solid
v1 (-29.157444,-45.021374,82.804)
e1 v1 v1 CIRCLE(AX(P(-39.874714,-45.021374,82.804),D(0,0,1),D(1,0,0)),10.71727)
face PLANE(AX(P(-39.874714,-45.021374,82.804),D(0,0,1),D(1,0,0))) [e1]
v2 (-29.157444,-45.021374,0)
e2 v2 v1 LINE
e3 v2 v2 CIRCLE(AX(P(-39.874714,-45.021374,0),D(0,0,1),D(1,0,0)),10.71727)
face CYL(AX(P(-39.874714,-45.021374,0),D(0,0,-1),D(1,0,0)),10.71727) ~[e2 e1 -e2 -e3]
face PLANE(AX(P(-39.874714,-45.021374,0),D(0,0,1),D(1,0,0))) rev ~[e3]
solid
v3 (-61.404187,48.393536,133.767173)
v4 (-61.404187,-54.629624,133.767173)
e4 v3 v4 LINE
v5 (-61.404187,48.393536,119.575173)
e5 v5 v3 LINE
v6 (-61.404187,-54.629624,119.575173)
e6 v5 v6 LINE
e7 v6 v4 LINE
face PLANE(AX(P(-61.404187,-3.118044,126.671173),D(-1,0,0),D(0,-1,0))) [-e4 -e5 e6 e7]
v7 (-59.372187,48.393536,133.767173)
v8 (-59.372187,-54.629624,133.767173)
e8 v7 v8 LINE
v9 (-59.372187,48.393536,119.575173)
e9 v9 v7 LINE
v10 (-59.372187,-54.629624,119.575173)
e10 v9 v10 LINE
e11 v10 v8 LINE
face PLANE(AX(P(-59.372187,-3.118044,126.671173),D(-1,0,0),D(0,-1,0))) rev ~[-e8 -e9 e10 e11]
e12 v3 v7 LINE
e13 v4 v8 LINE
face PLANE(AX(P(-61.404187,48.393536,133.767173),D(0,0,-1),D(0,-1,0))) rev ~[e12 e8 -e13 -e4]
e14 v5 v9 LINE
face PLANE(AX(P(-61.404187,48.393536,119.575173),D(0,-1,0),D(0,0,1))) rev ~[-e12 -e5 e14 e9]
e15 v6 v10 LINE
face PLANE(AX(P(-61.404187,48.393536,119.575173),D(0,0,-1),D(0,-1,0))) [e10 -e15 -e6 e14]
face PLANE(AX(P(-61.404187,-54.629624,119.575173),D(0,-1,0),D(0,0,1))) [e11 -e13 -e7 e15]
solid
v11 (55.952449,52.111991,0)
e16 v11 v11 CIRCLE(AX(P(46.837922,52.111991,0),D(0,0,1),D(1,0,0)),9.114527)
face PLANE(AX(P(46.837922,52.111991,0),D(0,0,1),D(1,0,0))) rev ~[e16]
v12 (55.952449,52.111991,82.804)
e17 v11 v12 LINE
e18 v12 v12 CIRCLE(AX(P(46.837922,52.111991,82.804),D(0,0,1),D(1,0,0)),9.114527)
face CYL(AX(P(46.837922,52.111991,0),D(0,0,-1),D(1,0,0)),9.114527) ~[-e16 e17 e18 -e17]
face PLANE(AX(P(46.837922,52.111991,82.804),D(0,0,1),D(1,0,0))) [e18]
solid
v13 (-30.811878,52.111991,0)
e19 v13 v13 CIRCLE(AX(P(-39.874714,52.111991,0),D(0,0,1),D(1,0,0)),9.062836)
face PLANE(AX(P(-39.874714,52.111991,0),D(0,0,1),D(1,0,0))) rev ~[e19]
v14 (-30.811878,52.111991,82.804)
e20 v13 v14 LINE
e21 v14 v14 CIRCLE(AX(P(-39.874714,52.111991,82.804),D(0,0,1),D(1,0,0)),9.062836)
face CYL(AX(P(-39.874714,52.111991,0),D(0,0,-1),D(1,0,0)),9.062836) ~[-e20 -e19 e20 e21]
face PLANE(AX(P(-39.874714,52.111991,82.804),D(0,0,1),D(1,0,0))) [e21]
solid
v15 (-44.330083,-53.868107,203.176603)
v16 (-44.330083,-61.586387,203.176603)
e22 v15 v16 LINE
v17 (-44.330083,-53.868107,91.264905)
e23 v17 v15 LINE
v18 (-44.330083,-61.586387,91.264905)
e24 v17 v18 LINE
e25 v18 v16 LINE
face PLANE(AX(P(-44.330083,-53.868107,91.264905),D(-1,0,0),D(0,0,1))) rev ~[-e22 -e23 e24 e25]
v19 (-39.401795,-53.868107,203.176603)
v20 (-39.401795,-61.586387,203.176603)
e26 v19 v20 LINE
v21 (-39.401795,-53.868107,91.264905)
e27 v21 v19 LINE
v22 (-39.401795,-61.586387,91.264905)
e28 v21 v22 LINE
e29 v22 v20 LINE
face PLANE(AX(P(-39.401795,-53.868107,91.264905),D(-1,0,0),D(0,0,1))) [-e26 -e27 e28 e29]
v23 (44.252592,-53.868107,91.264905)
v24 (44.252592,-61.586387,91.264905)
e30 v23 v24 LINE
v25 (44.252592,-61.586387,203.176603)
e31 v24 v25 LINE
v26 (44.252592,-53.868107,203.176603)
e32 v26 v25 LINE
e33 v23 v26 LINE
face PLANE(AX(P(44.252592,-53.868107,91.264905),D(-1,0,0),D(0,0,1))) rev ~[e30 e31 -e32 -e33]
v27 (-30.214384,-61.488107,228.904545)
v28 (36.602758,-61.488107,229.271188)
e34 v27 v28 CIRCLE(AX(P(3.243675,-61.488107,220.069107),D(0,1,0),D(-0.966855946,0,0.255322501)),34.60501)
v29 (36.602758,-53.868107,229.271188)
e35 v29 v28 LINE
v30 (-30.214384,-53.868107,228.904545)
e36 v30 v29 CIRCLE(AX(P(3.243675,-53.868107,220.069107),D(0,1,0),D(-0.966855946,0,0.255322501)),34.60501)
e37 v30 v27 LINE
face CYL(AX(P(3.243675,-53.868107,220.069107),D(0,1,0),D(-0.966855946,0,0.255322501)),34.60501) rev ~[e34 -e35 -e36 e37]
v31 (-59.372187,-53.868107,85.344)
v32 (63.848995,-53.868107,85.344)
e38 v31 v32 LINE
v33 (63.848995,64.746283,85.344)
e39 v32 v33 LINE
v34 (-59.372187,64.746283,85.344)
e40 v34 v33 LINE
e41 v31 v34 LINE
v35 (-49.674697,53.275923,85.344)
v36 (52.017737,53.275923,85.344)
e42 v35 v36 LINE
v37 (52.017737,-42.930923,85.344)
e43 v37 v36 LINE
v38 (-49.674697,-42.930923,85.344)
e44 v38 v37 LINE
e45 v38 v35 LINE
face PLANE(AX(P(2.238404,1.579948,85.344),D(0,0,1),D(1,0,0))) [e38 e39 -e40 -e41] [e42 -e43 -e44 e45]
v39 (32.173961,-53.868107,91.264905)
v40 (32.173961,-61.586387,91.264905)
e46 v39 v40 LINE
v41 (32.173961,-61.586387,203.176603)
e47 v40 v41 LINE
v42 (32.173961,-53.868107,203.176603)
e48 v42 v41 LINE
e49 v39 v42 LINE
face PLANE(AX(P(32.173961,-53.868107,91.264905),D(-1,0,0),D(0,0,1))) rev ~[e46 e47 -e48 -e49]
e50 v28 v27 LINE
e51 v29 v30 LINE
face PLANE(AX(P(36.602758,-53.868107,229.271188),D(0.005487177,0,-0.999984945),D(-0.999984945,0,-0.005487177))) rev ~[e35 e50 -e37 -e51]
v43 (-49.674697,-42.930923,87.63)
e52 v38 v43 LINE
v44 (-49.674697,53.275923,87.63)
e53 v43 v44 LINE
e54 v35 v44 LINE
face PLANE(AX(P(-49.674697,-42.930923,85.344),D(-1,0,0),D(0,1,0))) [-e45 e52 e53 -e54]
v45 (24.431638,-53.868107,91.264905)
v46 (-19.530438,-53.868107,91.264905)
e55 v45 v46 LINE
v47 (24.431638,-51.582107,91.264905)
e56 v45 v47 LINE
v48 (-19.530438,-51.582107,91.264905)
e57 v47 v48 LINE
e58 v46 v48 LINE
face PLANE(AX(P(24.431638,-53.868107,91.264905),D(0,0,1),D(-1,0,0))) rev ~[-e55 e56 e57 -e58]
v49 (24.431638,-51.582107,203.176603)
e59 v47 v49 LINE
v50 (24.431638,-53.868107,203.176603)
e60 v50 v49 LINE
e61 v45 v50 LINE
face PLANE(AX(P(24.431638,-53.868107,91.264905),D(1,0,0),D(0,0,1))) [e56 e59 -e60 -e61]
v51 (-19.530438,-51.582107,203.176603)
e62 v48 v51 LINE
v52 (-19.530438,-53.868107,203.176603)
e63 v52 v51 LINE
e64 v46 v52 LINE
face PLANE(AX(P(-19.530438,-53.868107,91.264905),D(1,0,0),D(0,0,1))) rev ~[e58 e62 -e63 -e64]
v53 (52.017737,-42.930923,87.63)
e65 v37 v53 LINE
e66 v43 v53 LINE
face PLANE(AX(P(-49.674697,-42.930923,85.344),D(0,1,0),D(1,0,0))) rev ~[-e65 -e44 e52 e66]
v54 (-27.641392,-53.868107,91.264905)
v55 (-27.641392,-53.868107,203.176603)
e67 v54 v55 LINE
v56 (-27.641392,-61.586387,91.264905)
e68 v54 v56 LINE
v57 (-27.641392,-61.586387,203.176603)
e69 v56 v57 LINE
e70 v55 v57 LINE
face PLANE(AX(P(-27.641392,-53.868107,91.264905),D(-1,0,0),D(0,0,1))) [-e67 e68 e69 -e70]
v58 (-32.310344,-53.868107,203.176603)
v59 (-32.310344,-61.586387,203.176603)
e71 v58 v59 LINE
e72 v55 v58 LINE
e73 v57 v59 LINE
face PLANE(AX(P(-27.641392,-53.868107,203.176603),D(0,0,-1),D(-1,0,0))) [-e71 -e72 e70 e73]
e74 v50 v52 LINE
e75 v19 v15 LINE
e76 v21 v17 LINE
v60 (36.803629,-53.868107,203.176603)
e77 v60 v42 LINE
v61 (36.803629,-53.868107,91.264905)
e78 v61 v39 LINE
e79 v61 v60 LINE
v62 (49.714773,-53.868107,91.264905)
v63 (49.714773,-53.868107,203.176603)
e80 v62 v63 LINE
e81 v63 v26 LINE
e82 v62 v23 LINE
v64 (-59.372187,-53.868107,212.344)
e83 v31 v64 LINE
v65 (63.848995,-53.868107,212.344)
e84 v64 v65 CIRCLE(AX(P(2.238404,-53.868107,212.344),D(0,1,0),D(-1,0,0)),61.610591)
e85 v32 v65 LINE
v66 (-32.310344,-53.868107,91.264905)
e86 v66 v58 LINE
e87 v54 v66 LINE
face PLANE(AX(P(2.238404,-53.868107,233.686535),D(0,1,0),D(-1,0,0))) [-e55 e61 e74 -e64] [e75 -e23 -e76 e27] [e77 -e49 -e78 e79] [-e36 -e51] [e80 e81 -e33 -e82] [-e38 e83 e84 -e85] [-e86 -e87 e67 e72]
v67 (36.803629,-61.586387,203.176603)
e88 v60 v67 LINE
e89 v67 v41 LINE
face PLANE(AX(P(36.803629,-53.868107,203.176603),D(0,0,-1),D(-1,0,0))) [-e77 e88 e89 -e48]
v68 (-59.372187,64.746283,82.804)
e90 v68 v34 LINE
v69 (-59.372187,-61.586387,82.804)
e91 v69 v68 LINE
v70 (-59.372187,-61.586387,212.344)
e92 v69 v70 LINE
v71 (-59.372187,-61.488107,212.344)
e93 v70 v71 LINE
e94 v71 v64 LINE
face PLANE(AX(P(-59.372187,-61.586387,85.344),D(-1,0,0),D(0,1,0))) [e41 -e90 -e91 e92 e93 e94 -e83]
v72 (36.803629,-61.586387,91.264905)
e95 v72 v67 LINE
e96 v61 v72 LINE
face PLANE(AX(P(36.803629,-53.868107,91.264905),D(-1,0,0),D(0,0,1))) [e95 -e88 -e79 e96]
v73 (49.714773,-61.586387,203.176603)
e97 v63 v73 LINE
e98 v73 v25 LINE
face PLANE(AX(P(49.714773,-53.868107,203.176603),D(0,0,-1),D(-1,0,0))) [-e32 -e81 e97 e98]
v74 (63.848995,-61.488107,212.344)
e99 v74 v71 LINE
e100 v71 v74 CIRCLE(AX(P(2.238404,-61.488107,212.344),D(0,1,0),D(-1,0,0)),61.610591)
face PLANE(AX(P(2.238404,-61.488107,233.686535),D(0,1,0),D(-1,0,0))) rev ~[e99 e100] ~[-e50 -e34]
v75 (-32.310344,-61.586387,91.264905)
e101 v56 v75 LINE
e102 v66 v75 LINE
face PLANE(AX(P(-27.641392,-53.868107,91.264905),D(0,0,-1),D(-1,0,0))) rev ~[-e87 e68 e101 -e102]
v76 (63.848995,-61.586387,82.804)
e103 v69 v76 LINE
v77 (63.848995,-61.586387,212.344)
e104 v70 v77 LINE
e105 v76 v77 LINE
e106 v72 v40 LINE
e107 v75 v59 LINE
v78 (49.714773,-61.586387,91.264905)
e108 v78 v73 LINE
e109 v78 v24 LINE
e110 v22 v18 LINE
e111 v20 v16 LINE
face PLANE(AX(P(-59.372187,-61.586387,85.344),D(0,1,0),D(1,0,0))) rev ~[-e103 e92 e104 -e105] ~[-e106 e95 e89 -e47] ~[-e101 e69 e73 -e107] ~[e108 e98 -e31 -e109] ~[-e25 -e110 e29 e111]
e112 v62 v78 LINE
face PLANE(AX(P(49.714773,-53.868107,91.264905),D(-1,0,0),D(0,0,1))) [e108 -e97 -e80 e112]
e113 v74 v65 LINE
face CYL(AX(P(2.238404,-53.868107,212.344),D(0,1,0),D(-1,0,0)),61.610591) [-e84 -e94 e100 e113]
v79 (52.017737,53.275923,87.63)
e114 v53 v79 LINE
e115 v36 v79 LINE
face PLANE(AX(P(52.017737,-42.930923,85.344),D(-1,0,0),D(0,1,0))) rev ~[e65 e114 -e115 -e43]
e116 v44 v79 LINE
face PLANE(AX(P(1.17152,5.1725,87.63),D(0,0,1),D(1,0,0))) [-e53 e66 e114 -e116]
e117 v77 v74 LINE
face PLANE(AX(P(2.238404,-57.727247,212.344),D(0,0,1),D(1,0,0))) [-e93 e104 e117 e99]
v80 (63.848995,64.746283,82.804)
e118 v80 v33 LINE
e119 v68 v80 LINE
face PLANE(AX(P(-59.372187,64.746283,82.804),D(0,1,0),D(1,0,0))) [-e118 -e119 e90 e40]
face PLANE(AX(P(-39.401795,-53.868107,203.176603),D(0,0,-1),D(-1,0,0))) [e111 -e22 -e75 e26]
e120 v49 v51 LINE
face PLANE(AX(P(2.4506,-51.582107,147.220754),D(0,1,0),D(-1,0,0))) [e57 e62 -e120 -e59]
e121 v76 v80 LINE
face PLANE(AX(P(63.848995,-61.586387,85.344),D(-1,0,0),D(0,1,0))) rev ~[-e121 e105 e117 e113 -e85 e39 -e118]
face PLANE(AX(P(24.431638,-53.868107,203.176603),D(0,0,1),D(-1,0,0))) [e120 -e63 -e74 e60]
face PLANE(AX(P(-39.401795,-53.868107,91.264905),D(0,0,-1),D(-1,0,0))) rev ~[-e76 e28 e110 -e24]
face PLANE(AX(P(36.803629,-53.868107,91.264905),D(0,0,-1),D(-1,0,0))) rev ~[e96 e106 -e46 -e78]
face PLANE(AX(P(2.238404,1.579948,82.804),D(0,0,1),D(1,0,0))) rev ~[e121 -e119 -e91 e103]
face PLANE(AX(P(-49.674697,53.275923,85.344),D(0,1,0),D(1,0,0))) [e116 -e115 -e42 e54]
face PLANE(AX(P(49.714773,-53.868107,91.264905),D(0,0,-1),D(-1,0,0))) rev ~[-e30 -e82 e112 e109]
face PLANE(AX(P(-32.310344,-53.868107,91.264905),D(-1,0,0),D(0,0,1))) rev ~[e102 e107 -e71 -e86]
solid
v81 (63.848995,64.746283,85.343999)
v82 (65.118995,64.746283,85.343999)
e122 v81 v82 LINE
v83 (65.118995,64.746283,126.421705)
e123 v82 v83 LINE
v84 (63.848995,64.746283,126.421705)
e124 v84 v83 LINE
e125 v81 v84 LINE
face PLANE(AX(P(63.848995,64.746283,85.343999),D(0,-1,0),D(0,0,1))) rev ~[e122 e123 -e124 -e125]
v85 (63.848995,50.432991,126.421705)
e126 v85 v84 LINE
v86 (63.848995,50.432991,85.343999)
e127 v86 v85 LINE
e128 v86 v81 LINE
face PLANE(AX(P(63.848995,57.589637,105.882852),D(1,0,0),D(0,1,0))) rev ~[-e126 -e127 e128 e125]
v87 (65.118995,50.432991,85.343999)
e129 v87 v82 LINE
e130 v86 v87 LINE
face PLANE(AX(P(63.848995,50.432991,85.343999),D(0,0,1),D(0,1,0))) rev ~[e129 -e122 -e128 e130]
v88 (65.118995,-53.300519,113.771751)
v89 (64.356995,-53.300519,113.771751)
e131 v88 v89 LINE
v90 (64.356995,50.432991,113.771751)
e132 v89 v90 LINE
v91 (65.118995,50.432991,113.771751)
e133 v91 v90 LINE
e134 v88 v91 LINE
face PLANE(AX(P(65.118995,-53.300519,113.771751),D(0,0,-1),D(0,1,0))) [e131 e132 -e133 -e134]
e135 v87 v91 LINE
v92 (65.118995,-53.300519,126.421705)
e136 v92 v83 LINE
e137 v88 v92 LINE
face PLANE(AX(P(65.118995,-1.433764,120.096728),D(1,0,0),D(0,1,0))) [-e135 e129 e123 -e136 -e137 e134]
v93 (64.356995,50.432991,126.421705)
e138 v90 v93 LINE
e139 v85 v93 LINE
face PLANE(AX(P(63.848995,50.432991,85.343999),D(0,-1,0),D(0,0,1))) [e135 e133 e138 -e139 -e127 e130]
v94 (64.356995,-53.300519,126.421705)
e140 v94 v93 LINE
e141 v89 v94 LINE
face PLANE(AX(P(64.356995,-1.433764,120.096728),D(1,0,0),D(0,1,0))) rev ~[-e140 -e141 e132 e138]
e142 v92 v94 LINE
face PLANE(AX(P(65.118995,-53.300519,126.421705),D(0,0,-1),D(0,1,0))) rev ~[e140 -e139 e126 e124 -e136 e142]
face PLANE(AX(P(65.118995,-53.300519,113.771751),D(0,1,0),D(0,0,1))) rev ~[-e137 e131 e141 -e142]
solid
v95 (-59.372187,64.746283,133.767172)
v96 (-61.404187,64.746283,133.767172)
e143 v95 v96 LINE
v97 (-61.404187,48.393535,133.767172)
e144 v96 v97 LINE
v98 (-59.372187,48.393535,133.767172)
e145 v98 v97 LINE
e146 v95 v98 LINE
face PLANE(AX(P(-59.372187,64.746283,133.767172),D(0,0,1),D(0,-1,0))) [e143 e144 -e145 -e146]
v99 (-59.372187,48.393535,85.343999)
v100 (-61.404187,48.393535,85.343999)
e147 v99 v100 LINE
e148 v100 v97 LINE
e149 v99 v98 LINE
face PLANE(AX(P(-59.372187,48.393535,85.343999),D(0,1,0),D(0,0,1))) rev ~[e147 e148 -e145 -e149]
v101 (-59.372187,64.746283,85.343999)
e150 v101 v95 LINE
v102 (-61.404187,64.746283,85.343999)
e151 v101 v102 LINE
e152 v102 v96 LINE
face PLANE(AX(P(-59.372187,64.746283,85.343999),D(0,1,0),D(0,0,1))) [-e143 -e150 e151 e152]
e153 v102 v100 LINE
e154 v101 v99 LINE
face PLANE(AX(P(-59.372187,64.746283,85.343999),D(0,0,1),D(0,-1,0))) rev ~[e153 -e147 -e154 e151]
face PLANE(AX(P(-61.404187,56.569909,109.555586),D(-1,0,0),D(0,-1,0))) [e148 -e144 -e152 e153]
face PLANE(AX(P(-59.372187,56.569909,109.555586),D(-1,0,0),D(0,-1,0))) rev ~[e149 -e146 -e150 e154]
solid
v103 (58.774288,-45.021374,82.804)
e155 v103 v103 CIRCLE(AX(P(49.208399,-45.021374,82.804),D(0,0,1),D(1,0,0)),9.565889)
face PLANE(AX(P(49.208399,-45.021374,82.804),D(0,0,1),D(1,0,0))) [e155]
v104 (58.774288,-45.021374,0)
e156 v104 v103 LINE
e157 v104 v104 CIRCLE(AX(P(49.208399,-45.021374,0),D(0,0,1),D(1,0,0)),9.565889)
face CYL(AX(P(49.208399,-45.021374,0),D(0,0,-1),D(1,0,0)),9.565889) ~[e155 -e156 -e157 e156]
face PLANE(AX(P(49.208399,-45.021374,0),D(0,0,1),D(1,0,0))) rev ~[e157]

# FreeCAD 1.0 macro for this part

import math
import FreeCAD as App
import Part
import Sketcher

V = App.Vector
Q = App.Units.Quantity

doc = App.newDocument("Part")
body = doc.addObject("PartDesign::Body", "Body")
body.AllowCompound = True

sketch1 = body.newObject("Sketcher::SketchObject", "Sketch")
sketch1.AttachmentSupport = (doc.getObject("XY_Plane"), [""])
sketch1.MapMode = "FlatFace"
sketch1.addGeometry(Part.Circle(V(-40, 52, 0), V(0, 0, 1), 9), False)
sketch1.addGeometry(Part.Circle(V(-40, -45, 0), V(0, 0, 1), 11), False)
sketch1.addGeometry(Part.Circle(V(49, -45, 0), V(0, 0, 1), 10), False)
sketch1.addGeometry(Part.Circle(V(47, 52, 0), V(0, 0, 1), 9), False)
sketch1.addConstraint(Sketcher.Constraint("Horizontal", 1, 3, 2, 3))
sketch1.addConstraint(Sketcher.Constraint("Horizontal", 0, 3, 3, 3))
sketch1.addConstraint(Sketcher.Constraint("Vertical", 0, 3, 1, 3))
sketch1.addConstraint(Sketcher.Constraint("Diameter", 1, 21.43454))
sketch1.addConstraint(Sketcher.Constraint("Diameter", 2, 19.131778))
sketch1.addConstraint(Sketcher.Constraint("Diameter", 0, 18.125672))
sketch1.addConstraint(Sketcher.Constraint("Diameter", 3, 18.229054))
sketch1.addConstraint(Sketcher.Constraint("DistanceX", -1, 1, 2, 3, 49.208399))
sketch1.addConstraint(Sketcher.Constraint("DistanceY", -1, 1, 0, 3, 52.111991))
sketch1.addConstraint(Sketcher.Constraint("DistanceX", 0, 3, -1, 1, 39.874714))
sketch1.addConstraint(Sketcher.Constraint("DistanceY", 1, 3, -1, 1, 45.021374))
sketch1.addConstraint(Sketcher.Constraint("DistanceX", -1, 1, 3, 3, 46.837922))
pad1 = body.newObject("PartDesign::Pad", "Pad")
pad1.Profile = sketch1
pad1.Length = Q("3.26 in")
body2 = doc.addObject("PartDesign::Body", "Body001")

sketch2 = body2.newObject("Sketcher::SketchObject", "Sketch001")
sketch2.AttachmentSupport = (doc.getObject("XY_Plane001"), [""])
sketch2.MapMode = "FlatFace"
sketch2.addGeometry(Part.LineSegment(V(12, 296, 0), V(12, 100, 0)), False)
sketch2.addGeometry(Part.LineSegment(V(12, 100, 0), V(124, 100, 0)), False)
sketch2.addGeometry(Part.LineSegment(V(124, 100, 0), V(124, 296, 0)), False)
sketch2.addGeometry(Part.LineSegment(V(124, 296, 0), V(12, 296, 0)), False)
sketch2.addConstraint(Sketcher.Constraint("Coincident", 0, 2, 1, 1))
sketch2.addConstraint(Sketcher.Constraint("Coincident", 1, 2, 2, 1))
sketch2.addConstraint(Sketcher.Constraint("Coincident", 2, 2, 3, 1))
sketch2.addConstraint(Sketcher.Constraint("Coincident", 3, 2, 0, 1))
sketch2.addConstraint(Sketcher.Constraint("Vertical", 0))
sketch2.addConstraint(Sketcher.Constraint("Horizontal", 1))
sketch2.addConstraint(Sketcher.Constraint("Vertical", 2))
sketch2.addConstraint(Sketcher.Constraint("Horizontal", 3))
sketch2.addConstraint(Sketcher.Constraint("DistanceX", 1, 1, 1, 2, 111.410721))
sketch2.addConstraint(Sketcher.Constraint("DistanceY", 0, 2, 0, 1, 195.24283))
sketch2.addConstraint(Sketcher.Constraint("DistanceX", -1, 1, 0, 2, 12.26236))
sketch2.addConstraint(Sketcher.Constraint("DistanceY", -1, 1, 0, 2, 100.490205))
pad2 = body2.newObject("PartDesign::Pad", "Pad001")
pad2.Profile = sketch2
pad2.Length = Q("0.14 in")
body3 = doc.addObject("PartDesign::Body", "Body002")

sketch3 = body3.newObject("Sketcher::SketchObject", "Sketch002")
sketch3.AttachmentSupport = (doc.getObject("XY_Plane002"), [""])
sketch3.MapMode = "FlatFace"
sketch3.addGeometry(Part.LineSegment(V(107, 142, 0), V(107, 0, 0)), False)
sketch3.addGeometry(Part.LineSegment(V(107, 0, 0), V(197, 0, 0)), False)
sketch3.addGeometry(Part.LineSegment(V(197, 0, 0), V(197, 142, 0)), False)
sketch3.addGeometry(Part.LineSegment(V(197, 142, 0), V(107, 142, 0)), False)
sketch3.addConstraint(Sketcher.Constraint("Coincident", 0, 2, 1, 1))
sketch3.addConstraint(Sketcher.Constraint("Coincident", 1, 2, 2, 1))
sketch3.addConstraint(Sketcher.Constraint("Coincident", 2, 2, 3, 1))
sketch3.addConstraint(Sketcher.Constraint("Coincident", 3, 2, 0, 1))
sketch3.addConstraint(Sketcher.Constraint("Vertical", 0))
sketch3.addConstraint(Sketcher.Constraint("Horizontal", 1))
sketch3.addConstraint(Sketcher.Constraint("Vertical", 2))
sketch3.addConstraint(Sketcher.Constraint("Horizontal", 3))
sketch3.addConstraint(Sketcher.Constraint("PointOnObject", 0, 2, -1))
sketch3.addConstraint(Sketcher.Constraint("DistanceX", 1, 1, 1, 2, 90.162061))
sketch3.addConstraint(Sketcher.Constraint("DistanceY", 0, 2, 0, 1, 141.660735))
sketch3.addConstraint(Sketcher.Constraint("DistanceX", -1, 1, 0, 2, 106.886304))
pad3 = body3.newObject("PartDesign::Pad", "Pad002")
pad3.Profile = sketch3
pad3.Length = Q("0.08 in")
body4 = doc.addObject("PartDesign::Body", "Body003")

sketch4 = body4.newObject("Sketcher::SketchObject", "Sketch003")
sketch4.AttachmentSupport = (doc.getObject("XY_Plane003"), [""])
sketch4.MapMode = "FlatFace"
sketch4.AttachmentOffset = App.Placement(V(0, 0, 3.26 * 25.4), App.Rotation())
sketch4.addGeometry(Part.LineSegment(V(-59, 65, 0), V(-59, -62, 0)), False)
sketch4.addGeometry(Part.LineSegment(V(-59, -62, 0), V(64, -62, 0)), False)
sketch4.addGeometry(Part.LineSegment(V(64, -62, 0), V(64, 65, 0)), False)
sketch4.addGeometry(Part.LineSegment(V(64, 65, 0), V(-59, 65, 0)), False)
sketch4.addConstraint(Sketcher.Constraint("Coincident", 0, 2, 1, 1))
sketch4.addConstraint(Sketcher.Constraint("Coincident", 1, 2, 2, 1))
sketch4.addConstraint(Sketcher.Constraint("Coincident", 2, 2, 3, 1))
sketch4.addConstraint(Sketcher.Constraint("Coincident", 3, 2, 0, 1))
sketch4.addConstraint(Sketcher.Constraint("Vertical", 0))
sketch4.addConstraint(Sketcher.Constraint("Horizontal", 1))
sketch4.addConstraint(Sketcher.Constraint("Vertical", 2))
sketch4.addConstraint(Sketcher.Constraint("Horizontal", 3))
sketch4.addConstraint(Sketcher.Constraint("DistanceX", 1, 1, 1, 2, 123.221182))
sketch4.addConstraint(Sketcher.Constraint("DistanceY", 0, 2, 0, 1, 126.33267))
sketch4.addConstraint(Sketcher.Constraint("DistanceX", 0, 2, -1, 1, 59.372187))
sketch4.addConstraint(Sketcher.Constraint("DistanceY", 0, 2, -1, 1, 61.586387))
pad4 = body4.newObject("PartDesign::Pad", "Pad003")
pad4.Profile = sketch4
pad4.Length = Q("0.1 in")

sketch5 = body4.newObject("Sketcher::SketchObject", "Sketch004")
sketch5.AttachmentSupport = (doc.getObject("XY_Plane003"), [""])
sketch5.MapMode = "FlatFace"
sketch5.AttachmentOffset = App.Placement(V(0, 0, 3.36 * 25.4), App.Rotation())
sketch5.addGeometry(Part.LineSegment(V(-59, -54, 0), V(-59, -62, 0)), False)
sketch5.addGeometry(Part.LineSegment(V(-59, -62, 0), V(64, -62, 0)), False)
sketch5.addGeometry(Part.LineSegment(V(64, -62, 0), V(64, -54, 0)), False)
sketch5.addGeometry(Part.LineSegment(V(64, -54, 0), V(-59, -54, 0)), False)
sketch5.addConstraint(Sketcher.Constraint("Coincident", 0, 2, 1, 1))
sketch5.addConstraint(Sketcher.Constraint("Coincident", 1, 2, 2, 1))
sketch5.addConstraint(Sketcher.Constraint("Coincident", 2, 2, 3, 1))
sketch5.addConstraint(Sketcher.Constraint("Coincident", 3, 2, 0, 1))
sketch5.addConstraint(Sketcher.Constraint("Vertical", 0))
sketch5.addConstraint(Sketcher.Constraint("Horizontal", 1))
sketch5.addConstraint(Sketcher.Constraint("Vertical", 2))
sketch5.addConstraint(Sketcher.Constraint("Horizontal", 3))
sketch5.addConstraint(Sketcher.Constraint("DistanceX", 1, 1, 1, 2, 123.221182))
sketch5.addConstraint(Sketcher.Constraint("DistanceY", 0, 2, 0, 1, 7.71828))
sketch5.addConstraint(Sketcher.Constraint("DistanceX", 0, 2, -1, 1, 59.372187))
sketch5.addConstraint(Sketcher.Constraint("DistanceY", 0, 2, -1, 1, 61.586387))
pad5 = body4.newObject("PartDesign::Pad", "Pad004")
pad5.Profile = sketch5
pad5.Length = Q("5 in")

sketch6 = body4.newObject("Sketcher::SketchObject", "Sketch005")
sketch6.AttachmentSupport = (doc.getObject("XZ_Plane003"), [""])
sketch6.MapMode = "FlatFace"
sketch6.AttachmentOffset = App.Placement(V(0, 0, 53.868107), App.Rotation())
sketch6.addGeometry(Part.LineSegment(V(50, 203, 0), V(50, 91, 0)), False)
sketch6.addGeometry(Part.LineSegment(V(50, 91, 0), V(44, 91, 0)), False)
sketch6.addGeometry(Part.LineSegment(V(44, 91, 0), V(44, 203, 0)), False)
sketch6.addGeometry(Part.LineSegment(V(44, 203, 0), V(50, 203, 0)), False)
sketch6.addConstraint(Sketcher.Constraint("Coincident", 0, 2, 1, 1))
sketch6.addConstraint(Sketcher.Constraint("Coincident", 1, 2, 2, 1))
sketch6.addConstraint(Sketcher.Constraint("Coincident", 2, 2, 3, 1))
sketch6.addConstraint(Sketcher.Constraint("Coincident", 3, 2, 0, 1))
sketch6.addConstraint(Sketcher.Constraint("Vertical", 0))
sketch6.addConstraint(Sketcher.Constraint("Horizontal", 1))
sketch6.addConstraint(Sketcher.Constraint("Vertical", 2))
sketch6.addConstraint(Sketcher.Constraint("Horizontal", 3))
sketch6.addConstraint(Sketcher.Constraint("DistanceY", 0, 2, 0, 1, 111.911699))
sketch6.addConstraint(Sketcher.Constraint("DistanceX", 1, 2, 1, 1, 5.462181))
sketch6.addConstraint(Sketcher.Constraint("DistanceX", -1, 1, 0, 2, 49.714773))
sketch6.addConstraint(Sketcher.Constraint("DistanceY", -1, 1, 0, 2, 91.264905))
pocket1 = body4.newObject("PartDesign::Pocket", "Pocket")
pocket1.Profile = sketch6
pocket1.Length = Q("1 in")
pocket1.Reversed = True

sketch7 = body4.newObject("Sketcher::SketchObject", "Sketch006")
sketch7.AttachmentSupport = (doc.getObject("XZ_Plane003"), [""])
sketch7.MapMode = "FlatFace"
sketch7.AttachmentOffset = App.Placement(V(0, 0, 53.868107), App.Rotation())
sketch7.addGeometry(Part.LineSegment(V(36.8, 203.2, 0), V(36.8, 91.3, 0)), False)
sketch7.addGeometry(Part.LineSegment(V(36.8, 91.3, 0), V(32.2, 91.3, 0)), False)
sketch7.addGeometry(Part.LineSegment(V(32.2, 91.3, 0), V(32.2, 203.2, 0)), False)
sketch7.addGeometry(Part.LineSegment(V(32.2, 203.2, 0), V(36.8, 203.2, 0)), False)
sketch7.addConstraint(Sketcher.Constraint("Coincident", 0, 2, 1, 1))
sketch7.addConstraint(Sketcher.Constraint("Coincident", 1, 2, 2, 1))
sketch7.addConstraint(Sketcher.Constraint("Coincident", 2, 2, 3, 1))
sketch7.addConstraint(Sketcher.Constraint("Coincident", 3, 2, 0, 1))
sketch7.addConstraint(Sketcher.Constraint("Vertical", 0))
sketch7.addConstraint(Sketcher.Constraint("Horizontal", 1))
sketch7.addConstraint(Sketcher.Constraint("Vertical", 2))
sketch7.addConstraint(Sketcher.Constraint("Horizontal", 3))
sketch7.addConstraint(Sketcher.Constraint("DistanceY", 0, 2, 0, 1, 111.911699))
sketch7.addConstraint(Sketcher.Constraint("DistanceX", 1, 2, 1, 1, 4.629668))
sketch7.addConstraint(Sketcher.Constraint("DistanceX", -1, 1, 0, 2, 36.803629))
sketch7.addConstraint(Sketcher.Constraint("DistanceY", -1, 1, 0, 2, 91.264905))
pocket2 = body4.newObject("PartDesign::Pocket", "Pocket001")
pocket2.Profile = sketch7
pocket2.Length = Q("1 in")
pocket2.Reversed = True

sketch8 = body4.newObject("Sketcher::SketchObject", "Sketch007")
sketch8.AttachmentSupport = (doc.getObject("XZ_Plane003"), [""])
sketch8.MapMode = "FlatFace"
sketch8.AttachmentOffset = App.Placement(V(0, 0, 53.868107), App.Rotation())
sketch8.addGeometry(Part.LineSegment(V(-39.4, 203.2, 0), V(-39.4, 91.3, 0)), False)
sketch8.addGeometry(Part.LineSegment(V(-39.4, 91.3, 0), V(-44.3, 91.3, 0)), False)
sketch8.addGeometry(Part.LineSegment(V(-44.3, 91.3, 0), V(-44.3, 203.2, 0)), False)
sketch8.addGeometry(Part.LineSegment(V(-44.3, 203.2, 0), V(-39.4, 203.2, 0)), False)
sketch8.addConstraint(Sketcher.Constraint("Coincident", 0, 2, 1, 1))
sketch8.addConstraint(Sketcher.Constraint("Coincident", 1, 2, 2, 1))
sketch8.addConstraint(Sketcher.Constraint("Coincident", 2, 2, 3, 1))
sketch8.addConstraint(Sketcher.Constraint("Coincident", 3, 2, 0, 1))
sketch8.addConstraint(Sketcher.Constraint("Vertical", 0))
sketch8.addConstraint(Sketcher.Constraint("Horizontal", 1))
sketch8.addConstraint(Sketcher.Constraint("Vertical", 2))
sketch8.addConstraint(Sketcher.Constraint("Horizontal", 3))
sketch8.addConstraint(Sketcher.Constraint("DistanceY", 0, 2, 0, 1, 111.911699))
sketch8.addConstraint(Sketcher.Constraint("DistanceX", 1, 2, 1, 1, 4.928287))
sketch8.addConstraint(Sketcher.Constraint("DistanceX", 0, 2, -1, 1, 39.401795))
sketch8.addConstraint(Sketcher.Constraint("DistanceY", -1, 1, 0, 2, 91.264905))
pocket3 = body4.newObject("PartDesign::Pocket", "Pocket002")
pocket3.Profile = sketch8
pocket3.Length = Q("1 in")
pocket3.Reversed = True

sketch9 = body4.newObject("Sketcher::SketchObject", "Sketch008")
sketch9.AttachmentSupport = (doc.getObject("XZ_Plane003"), [""])
sketch9.MapMode = "FlatFace"
sketch9.AttachmentOffset = App.Placement(V(0, 0, 53.868107), App.Rotation())
sketch9.addGeometry(Part.LineSegment(V(-27.6, 203.2, 0), V(-27.6, 91.3, 0)), False)
sketch9.addGeometry(Part.LineSegment(V(-27.6, 91.3, 0), V(-32.3, 91.3, 0)), False)
sketch9.addGeometry(Part.LineSegment(V(-32.3, 91.3, 0), V(-32.3, 203.2, 0)), False)
sketch9.addGeometry(Part.LineSegment(V(-32.3, 203.2, 0), V(-27.6, 203.2, 0)), False)
sketch9.addConstraint(Sketcher.Constraint("Coincident", 0, 2, 1, 1))
sketch9.addConstraint(Sketcher.Constraint("Coincident", 1, 2, 2, 1))
sketch9.addConstraint(Sketcher.Constraint("Coincident", 2, 2, 3, 1))
sketch9.addConstraint(Sketcher.Constraint("Coincident", 3, 2, 0, 1))
sketch9.addConstraint(Sketcher.Constraint("Vertical", 0))
sketch9.addConstraint(Sketcher.Constraint("Horizontal", 1))
sketch9.addConstraint(Sketcher.Constraint("Vertical", 2))
sketch9.addConstraint(Sketcher.Constraint("Horizontal", 3))
sketch9.addConstraint(Sketcher.Constraint("DistanceY", 0, 2, 0, 1, 111.911699))
sketch9.addConstraint(Sketcher.Constraint("DistanceX", 1, 2, 1, 1, 4.668951))
sketch9.addConstraint(Sketcher.Constraint("DistanceX", 0, 2, -1, 1, 27.641392))
sketch9.addConstraint(Sketcher.Constraint("DistanceY", -1, 1, 0, 2, 91.264905))
pocket4 = body4.newObject("PartDesign::Pocket", "Pocket003")
pocket4.Profile = sketch9
pocket4.Length = Q("1 in")
pocket4.Reversed = True

sketch10 = body4.newObject("Sketcher::SketchObject", "Sketch009")
sketch10.AttachmentSupport = (doc.getObject("XZ_Plane003"), [""])
sketch10.MapMode = "FlatFace"
sketch10.AttachmentOffset = App.Placement(V(0, 0, 53.868107), App.Rotation())
sketch10.addGeometry(Part.LineSegment(V(64, 212, 0), V(-59, 212, 0)), False)
sketch10.addGeometry(Part.ArcOfCircle(Part.Circle(V(2, 212, 0), V(0, 0, 1), 62), math.radians(0), math.radians(180)), False)
sketch10.addConstraint(Sketcher.Constraint("Coincident", 0, 1, 1, 1))
sketch10.addConstraint(Sketcher.Constraint("Coincident", 1, 2, 0, 2))
sketch10.addConstraint(Sketcher.Constraint("Horizontal", 0))
sketch10.addConstraint(Sketcher.Constraint("Horizontal", 1, 3, 0, 1))
sketch10.addConstraint(Sketcher.Constraint("DistanceY", -1, 1, 1, 3, Q("8.36 in")))
sketch10.addConstraint(Sketcher.Constraint("Radius", 1, 61.610591))
sketch10.addConstraint(Sketcher.Constraint("DistanceX", -1, 1, 1, 3, 2.238404))
pad6 = body4.newObject("PartDesign::Pad", "Pad005")
pad6.Profile = sketch10
pad6.Length = Q("0.3 in")

sketch11 = body4.newObject("Sketcher::SketchObject", "Sketch010")
sketch11.AttachmentSupport = (doc.getObject("XZ_Plane003"), [""])
sketch11.MapMode = "FlatFace"
sketch11.AttachmentOffset = App.Placement(V(0, 0, 53.868107), App.Rotation())
sketch11.addGeometry(Part.LineSegment(V(37, 229, 0), V(-30, 229, 0)), False)
sketch11.addGeometry(Part.ArcOfCircle(Part.Circle(V(3, 220, 0), V(0, 0, 1), 35), math.radians(15), math.radians(165)), False)
sketch11.addConstraint(Sketcher.Constraint("Coincident", 0, 1, 1, 1))
sketch11.addConstraint(Sketcher.Constraint("Coincident", 1, 2, 0, 2))
sketch11.addConstraint(Sketcher.Constraint("Radius", 1, 34.60501))
sketch11.addConstraint(Sketcher.Constraint("DistanceY", -1, 1, 0, 1, 229.271188))
sketch11.addConstraint(Sketcher.Constraint("DistanceY", 1, 3, 0, 1, 9.202081))
sketch11.addConstraint(Sketcher.Constraint("DistanceX", 1, 2, 1, 3, 33.458059))
sketch11.addConstraint(Sketcher.Constraint("DistanceX", -1, 1, 1, 3, 3.243675))
pocket5 = body4.newObject("PartDesign::Pocket", "Pocket004")
pocket5.Profile = sketch11
pocket5.Length = Q("1 in")
pocket5.Reversed = True

sketch12 = body4.newObject("Sketcher::SketchObject", "Sketch011")
sketch12.AttachmentSupport = (doc.getObject("XY_Plane003"), [""])
sketch12.MapMode = "FlatFace"
sketch12.AttachmentOffset = App.Placement(V(0, 0, 3.36 * 25.4), App.Rotation())
sketch12.addGeometry(Part.LineSegment(V(-50, 53, 0), V(-50, -43, 0)), False)
sketch12.addGeometry(Part.LineSegment(V(-50, -43, 0), V(52, -43, 0)), False)
sketch12.addGeometry(Part.LineSegment(V(52, -43, 0), V(52, 53, 0)), False)
sketch12.addGeometry(Part.LineSegment(V(52, 53, 0), V(-50, 53, 0)), False)
sketch12.addConstraint(Sketcher.Constraint("Coincident", 0, 2, 1, 1))
sketch12.addConstraint(Sketcher.Constraint("Coincident", 1, 2, 2, 1))
sketch12.addConstraint(Sketcher.Constraint("Coincident", 2, 2, 3, 1))
sketch12.addConstraint(Sketcher.Constraint("Coincident", 3, 2, 0, 1))
sketch12.addConstraint(Sketcher.Constraint("Vertical", 0))
sketch12.addConstraint(Sketcher.Constraint("Horizontal", 1))
sketch12.addConstraint(Sketcher.Constraint("Vertical", 2))
sketch12.addConstraint(Sketcher.Constraint("Horizontal", 3))
sketch12.addConstraint(Sketcher.Constraint("DistanceX", 1, 1, 1, 2, 101.692434))
sketch12.addConstraint(Sketcher.Constraint("DistanceY", 0, 2, 0, 1, 96.206847))
sketch12.addConstraint(Sketcher.Constraint("DistanceX", 0, 2, -1, 1, 49.674697))
sketch12.addConstraint(Sketcher.Constraint("DistanceY", 0, 2, -1, 1, 42.930923))
pad7 = body4.newObject("PartDesign::Pad", "Pad006")
pad7.Profile = sketch12
pad7.Length = Q("0.09 in")

sketch13 = body4.newObject("Sketcher::SketchObject", "Sketch012")
sketch13.AttachmentSupport = (doc.getObject("XZ_Plane003"), [""])
sketch13.MapMode = "FlatFace"
sketch13.AttachmentOffset = App.Placement(V(0, 0, 53.868107), App.Rotation())
sketch13.addGeometry(Part.LineSegment(V(24, 203, 0), V(24, 91, 0)), False)
sketch13.addGeometry(Part.LineSegment(V(24, 91, 0), V(-20, 91, 0)), False)
sketch13.addGeometry(Part.LineSegment(V(-20, 91, 0), V(-20, 203, 0)), False)
sketch13.addGeometry(Part.LineSegment(V(-20, 203, 0), V(24, 203, 0)), False)
sketch13.addConstraint(Sketcher.Constraint("Coincident", 0, 2, 1, 1))
sketch13.addConstraint(Sketcher.Constraint("Coincident", 1, 2, 2, 1))
sketch13.addConstraint(Sketcher.Constraint("Coincident", 2, 2, 3, 1))
sketch13.addConstraint(Sketcher.Constraint("Coincident", 3, 2, 0, 1))
sketch13.addConstraint(Sketcher.Constraint("Vertical", 0))
sketch13.addConstraint(Sketcher.Constraint("Horizontal", 1))
sketch13.addConstraint(Sketcher.Constraint("Vertical", 2))
sketch13.addConstraint(Sketcher.Constraint("Horizontal", 3))
sketch13.addConstraint(Sketcher.Constraint("DistanceY", 0, 2, 0, 1, 111.911699))
sketch13.addConstraint(Sketcher.Constraint("DistanceX", 1, 2, 1, 1, 43.962076))
sketch13.addConstraint(Sketcher.Constraint("DistanceX", 1, 2, -1, 1, 19.530438))
sketch13.addConstraint(Sketcher.Constraint("DistanceY", -1, 1, 0, 2, 91.264905))
pad8 = body4.newObject("PartDesign::Pad", "Pad007")
pad8.Profile = sketch13
pad8.Length = Q("0.09 in")
pad8.Reversed = True
body5 = doc.addObject("PartDesign::Body", "Body004")

sketch14 = body5.newObject("Sketcher::SketchObject", "Sketch013")
sketch14.AttachmentSupport = (doc.getObject("YZ_Plane004"), [""])
sketch14.MapMode = "FlatFace"
sketch14.AttachmentOffset = App.Placement(V(0, 0, 63.848995), App.Rotation())
sketch14.addGeometry(Part.LineSegment(V(50, 126, 0), V(50, 85, 0)), False)
sketch14.addGeometry(Part.LineSegment(V(50, 85, 0), V(65, 85, 0)), False)
sketch14.addGeometry(Part.LineSegment(V(65, 85, 0), V(65, 126, 0)), False)
sketch14.addGeometry(Part.LineSegment(V(65, 126, 0), V(50, 126, 0)), False)
sketch14.addConstraint(Sketcher.Constraint("Coincident", 0, 2, 1, 1))
sketch14.addConstraint(Sketcher.Constraint("Coincident", 1, 2, 2, 1))
sketch14.addConstraint(Sketcher.Constraint("Coincident", 2, 2, 3, 1))
sketch14.addConstraint(Sketcher.Constraint("Coincident", 3, 2, 0, 1))
sketch14.addConstraint(Sketcher.Constraint("Vertical", 0))
sketch14.addConstraint(Sketcher.Constraint("Horizontal", 1))
sketch14.addConstraint(Sketcher.Constraint("Vertical", 2))
sketch14.addConstraint(Sketcher.Constraint("Horizontal", 3))
sketch14.addConstraint(Sketcher.Constraint("DistanceY", -1, 1, 0, 2, Q("3.36 in")))
sketch14.addConstraint(Sketcher.Constraint("DistanceX", 1, 1, 1, 2, 14.313292))
sketch14.addConstraint(Sketcher.Constraint("DistanceY", 0, 2, 0, 1, 41.077705))
sketch14.addConstraint(Sketcher.Constraint("DistanceX", -1, 1, 0, 2, 50.432991))
pad9 = body5.newObject("PartDesign::Pad", "Pad008")
pad9.Profile = sketch14
pad9.Length = Q("0.05 in")

sketch15 = body5.newObject("Sketcher::SketchObject", "Sketch014")
sketch15.AttachmentSupport = (doc.getObject("YZ_Plane004"), [""])
sketch15.MapMode = "FlatFace"
sketch15.AttachmentOffset = App.Placement(V(0, 0, 65.118995), App.Rotation())
sketch15.addGeometry(Part.LineSegment(V(-53, 126, 0), V(-53, 114, 0)), False)
sketch15.addGeometry(Part.LineSegment(V(-53, 114, 0), V(50, 114, 0)), False)
sketch15.addGeometry(Part.LineSegment(V(50, 114, 0), V(50, 126, 0)), False)
sketch15.addGeometry(Part.LineSegment(V(50, 126, 0), V(-53, 126, 0)), False)
sketch15.addConstraint(Sketcher.Constraint("Coincident", 0, 2, 1, 1))
sketch15.addConstraint(Sketcher.Constraint("Coincident", 1, 2, 2, 1))
sketch15.addConstraint(Sketcher.Constraint("Coincident", 2, 2, 3, 1))
sketch15.addConstraint(Sketcher.Constraint("Coincident", 3, 2, 0, 1))
sketch15.addConstraint(Sketcher.Constraint("Vertical", 0))
sketch15.addConstraint(Sketcher.Constraint("Horizontal", 1))
sketch15.addConstraint(Sketcher.Constraint("Vertical", 2))
sketch15.addConstraint(Sketcher.Constraint("Horizontal", 3))
sketch15.addConstraint(Sketcher.Constraint("DistanceX", 1, 1, 1, 2, 103.73351))
sketch15.addConstraint(Sketcher.Constraint("DistanceY", 0, 2, 0, 1, 12.649953))
sketch15.addConstraint(Sketcher.Constraint("DistanceX", 0, 2, -1, 1, 53.300519))
sketch15.addConstraint(Sketcher.Constraint("DistanceY", -1, 1, 0, 2, 113.771751))
pad10 = body5.newObject("PartDesign::Pad", "Pad009")
pad10.Profile = sketch15
pad10.Length = Q("0.03 in")
pad10.Reversed = True
body6 = doc.addObject("PartDesign::Body", "Body005")

sketch16 = body6.newObject("Sketcher::SketchObject", "Sketch015")
sketch16.AttachmentSupport = (doc.getObject("YZ_Plane005"), [""])
sketch16.MapMode = "FlatFace"
sketch16.AttachmentOffset = App.Placement(V(0, 0, -59.372187), App.Rotation())
sketch16.addGeometry(Part.LineSegment(V(65, 134, 0), V(65, 85, 0)), False)
sketch16.addGeometry(Part.LineSegment(V(65, 85, 0), V(48, 85, 0)), False)
sketch16.addGeometry(Part.LineSegment(V(48, 85, 0), V(48, 134, 0)), False)
sketch16.addGeometry(Part.LineSegment(V(48, 134, 0), V(65, 134, 0)), False)
sketch16.addConstraint(Sketcher.Constraint("Coincident", 0, 2, 1, 1))
sketch16.addConstraint(Sketcher.Constraint("Coincident", 1, 2, 2, 1))
sketch16.addConstraint(Sketcher.Constraint("Coincident", 2, 2, 3, 1))
sketch16.addConstraint(Sketcher.Constraint("Coincident", 3, 2, 0, 1))
sketch16.addConstraint(Sketcher.Constraint("Vertical", 0))
sketch16.addConstraint(Sketcher.Constraint("Horizontal", 1))
sketch16.addConstraint(Sketcher.Constraint("Vertical", 2))
sketch16.addConstraint(Sketcher.Constraint("Horizontal", 3))
sketch16.addConstraint(Sketcher.Constraint("DistanceY", -1, 1, 0, 2, Q("3.36 in")))
sketch16.addConstraint(Sketcher.Constraint("DistanceX", 1, 2, 1, 1, 16.352747))
sketch16.addConstraint(Sketcher.Constraint("DistanceY", 0, 2, 0, 1, 48.423173))
sketch16.addConstraint(Sketcher.Constraint("DistanceX", -1, 1, 0, 2, 64.746283))
pad11 = body6.newObject("PartDesign::Pad", "Pad010")
pad11.Profile = sketch16
pad11.Length = Q("0.08 in")
pad11.Reversed = True
body7 = doc.addObject("PartDesign::Body", "Body006")

sketch17 = body7.newObject("Sketcher::SketchObject", "Sketch016")
sketch17.AttachmentSupport = (doc.getObject("YZ_Plane006"), [""])
sketch17.MapMode = "FlatFace"
sketch17.AttachmentOffset = App.Placement(V(0, 0, -61.404187), App.Rotation())
sketch17.addGeometry(Part.LineSegment(V(48, 134, 0), V(48, 120, 0)), False)
sketch17.addGeometry(Part.LineSegment(V(48, 120, 0), V(-55, 120, 0)), False)
sketch17.addGeometry(Part.LineSegment(V(-55, 120, 0), V(-55, 134, 0)), False)
sketch17.addGeometry(Part.LineSegment(V(-55, 134, 0), V(48, 134, 0)), False)
sketch17.addConstraint(Sketcher.Constraint("Coincident", 0, 2, 1, 1))
sketch17.addConstraint(Sketcher.Constraint("Coincident", 1, 2, 2, 1))
sketch17.addConstraint(Sketcher.Constraint("Coincident", 2, 2, 3, 1))
sketch17.addConstraint(Sketcher.Constraint("Coincident", 3, 2, 0, 1))
sketch17.addConstraint(Sketcher.Constraint("Vertical", 0))
sketch17.addConstraint(Sketcher.Constraint("Horizontal", 1))
sketch17.addConstraint(Sketcher.Constraint("Vertical", 2))
sketch17.addConstraint(Sketcher.Constraint("Horizontal", 3))
sketch17.addConstraint(Sketcher.Constraint("DistanceY", 0, 2, 0, 1, 14.192))
sketch17.addConstraint(Sketcher.Constraint("DistanceX", 1, 2, 1, 1, 103.02316))
sketch17.addConstraint(Sketcher.Constraint("DistanceX", -1, 1, 0, 2, 48.393536))
sketch17.addConstraint(Sketcher.Constraint("DistanceY", -1, 1, 0, 2, 119.575173))
pad12 = body7.newObject("PartDesign::Pad", "Pad011")
pad12.Profile = sketch17
pad12.Length = Q("0.08 in")
body2.Visibility = False
body3.Visibility = False

doc.recompute()
